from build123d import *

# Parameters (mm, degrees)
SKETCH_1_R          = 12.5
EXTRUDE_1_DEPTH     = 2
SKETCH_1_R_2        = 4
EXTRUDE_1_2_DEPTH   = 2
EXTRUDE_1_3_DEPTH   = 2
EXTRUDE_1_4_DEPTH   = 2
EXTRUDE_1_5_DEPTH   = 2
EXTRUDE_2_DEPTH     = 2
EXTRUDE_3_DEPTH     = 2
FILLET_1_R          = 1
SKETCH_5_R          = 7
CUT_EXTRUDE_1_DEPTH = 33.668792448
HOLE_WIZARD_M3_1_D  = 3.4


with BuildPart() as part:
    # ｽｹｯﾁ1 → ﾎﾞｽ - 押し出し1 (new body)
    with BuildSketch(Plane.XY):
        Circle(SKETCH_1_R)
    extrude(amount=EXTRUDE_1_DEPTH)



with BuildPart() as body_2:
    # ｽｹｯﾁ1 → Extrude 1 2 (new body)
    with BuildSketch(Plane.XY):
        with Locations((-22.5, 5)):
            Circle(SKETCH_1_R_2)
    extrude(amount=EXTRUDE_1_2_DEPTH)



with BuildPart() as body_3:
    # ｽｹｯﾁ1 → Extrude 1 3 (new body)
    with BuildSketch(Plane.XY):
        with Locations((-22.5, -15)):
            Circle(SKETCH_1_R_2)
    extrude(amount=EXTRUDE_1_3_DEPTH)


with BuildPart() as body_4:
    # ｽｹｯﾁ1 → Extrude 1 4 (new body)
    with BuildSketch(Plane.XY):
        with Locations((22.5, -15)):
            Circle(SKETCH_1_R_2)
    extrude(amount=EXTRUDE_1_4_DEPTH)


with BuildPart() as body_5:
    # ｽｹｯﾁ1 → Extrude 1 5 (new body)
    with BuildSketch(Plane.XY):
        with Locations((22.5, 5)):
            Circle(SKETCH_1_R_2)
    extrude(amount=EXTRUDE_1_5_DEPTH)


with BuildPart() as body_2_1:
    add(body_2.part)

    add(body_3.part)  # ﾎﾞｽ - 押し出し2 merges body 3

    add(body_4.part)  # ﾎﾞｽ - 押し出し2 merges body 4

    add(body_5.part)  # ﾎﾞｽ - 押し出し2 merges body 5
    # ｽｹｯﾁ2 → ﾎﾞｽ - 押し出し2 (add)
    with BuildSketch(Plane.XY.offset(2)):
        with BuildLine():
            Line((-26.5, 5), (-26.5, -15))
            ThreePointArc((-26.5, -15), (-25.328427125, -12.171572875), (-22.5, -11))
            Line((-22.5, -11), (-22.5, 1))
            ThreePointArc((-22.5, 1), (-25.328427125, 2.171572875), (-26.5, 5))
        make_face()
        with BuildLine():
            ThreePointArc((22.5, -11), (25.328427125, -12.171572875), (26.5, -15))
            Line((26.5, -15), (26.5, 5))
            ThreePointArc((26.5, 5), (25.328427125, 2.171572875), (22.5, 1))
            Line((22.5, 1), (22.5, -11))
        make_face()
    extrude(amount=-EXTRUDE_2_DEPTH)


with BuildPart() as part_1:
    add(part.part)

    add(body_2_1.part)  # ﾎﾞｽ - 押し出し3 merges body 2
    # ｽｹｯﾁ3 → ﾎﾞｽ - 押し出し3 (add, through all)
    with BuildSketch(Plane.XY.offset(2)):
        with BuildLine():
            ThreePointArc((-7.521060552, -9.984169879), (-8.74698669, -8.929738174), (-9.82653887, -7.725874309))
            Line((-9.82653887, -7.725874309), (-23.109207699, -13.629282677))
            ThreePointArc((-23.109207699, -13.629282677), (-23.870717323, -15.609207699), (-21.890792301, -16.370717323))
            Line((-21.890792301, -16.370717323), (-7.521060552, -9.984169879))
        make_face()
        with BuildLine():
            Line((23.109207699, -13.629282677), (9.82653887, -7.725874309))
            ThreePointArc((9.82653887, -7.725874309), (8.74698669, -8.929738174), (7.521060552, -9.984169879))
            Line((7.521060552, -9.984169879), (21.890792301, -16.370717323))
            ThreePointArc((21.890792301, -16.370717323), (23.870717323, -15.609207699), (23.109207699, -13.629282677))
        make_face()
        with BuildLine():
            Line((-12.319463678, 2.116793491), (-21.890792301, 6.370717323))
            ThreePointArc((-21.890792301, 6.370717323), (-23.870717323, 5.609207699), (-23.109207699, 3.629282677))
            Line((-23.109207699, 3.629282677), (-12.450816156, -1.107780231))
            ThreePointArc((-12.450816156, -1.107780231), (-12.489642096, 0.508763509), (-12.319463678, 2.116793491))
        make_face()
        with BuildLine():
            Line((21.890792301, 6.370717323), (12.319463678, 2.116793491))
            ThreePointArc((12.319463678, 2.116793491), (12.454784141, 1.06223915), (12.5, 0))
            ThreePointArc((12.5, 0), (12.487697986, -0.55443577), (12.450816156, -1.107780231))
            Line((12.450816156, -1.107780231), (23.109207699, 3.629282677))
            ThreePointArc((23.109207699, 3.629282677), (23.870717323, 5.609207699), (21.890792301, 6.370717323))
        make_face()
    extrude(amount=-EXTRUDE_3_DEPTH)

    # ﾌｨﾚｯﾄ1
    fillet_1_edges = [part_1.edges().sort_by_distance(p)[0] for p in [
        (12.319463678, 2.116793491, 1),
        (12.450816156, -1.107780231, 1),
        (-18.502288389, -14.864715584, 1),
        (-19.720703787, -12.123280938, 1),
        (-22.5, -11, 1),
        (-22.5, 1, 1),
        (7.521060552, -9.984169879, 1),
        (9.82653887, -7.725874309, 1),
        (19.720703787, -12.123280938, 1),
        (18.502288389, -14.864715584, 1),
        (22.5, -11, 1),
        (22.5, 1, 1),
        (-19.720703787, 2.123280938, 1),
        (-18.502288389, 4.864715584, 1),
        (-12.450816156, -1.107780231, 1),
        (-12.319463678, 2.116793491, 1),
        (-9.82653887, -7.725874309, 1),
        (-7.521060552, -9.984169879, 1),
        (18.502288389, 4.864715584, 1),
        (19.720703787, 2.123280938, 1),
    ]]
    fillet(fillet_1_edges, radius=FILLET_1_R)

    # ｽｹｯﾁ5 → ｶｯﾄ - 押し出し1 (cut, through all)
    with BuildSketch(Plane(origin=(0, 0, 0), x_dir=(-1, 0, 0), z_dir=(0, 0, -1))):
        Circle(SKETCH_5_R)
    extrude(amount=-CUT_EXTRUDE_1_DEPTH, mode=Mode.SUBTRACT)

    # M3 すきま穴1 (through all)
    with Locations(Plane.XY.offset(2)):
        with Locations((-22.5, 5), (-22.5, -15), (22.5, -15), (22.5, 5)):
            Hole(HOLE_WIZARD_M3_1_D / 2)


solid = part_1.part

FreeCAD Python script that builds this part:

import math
import FreeCAD as App
import Part
import Sketcher

V = App.Vector
Q = App.Units.Quantity


def edges_at(feature, points):
    """Names of the edges that pass closest to the given points."""
    edges = feature.Shape.Edges
    near = lambda p: min(range(len(edges)), key=lambda i: edges[i].distToShape(Part.Vertex(*p))[0])
    return sorted({f"Edge{near(p) + 1}" for p in points})

doc = App.newDocument("Part")
body = doc.addObject("PartDesign::Body", "Body")

# Sketch on XY plane
sketch1 = body.newObject("Sketcher::SketchObject", "Sketch")
sketch1.AttachmentSupport = (doc.getObject("XY_Plane"), [""])
sketch1.MapMode = "FlatFace"
sketch1.addGeometry(Part.Circle(V(0, 0, 0), V(0, 0, 1), 12), False)
sketch1.addConstraint([
    Sketcher.Constraint("Coincident", 0, 3, -1, 1),
    Sketcher.Constraint("Diameter", 0, Q("25 mm")),
])
pad1 = body.newObject("PartDesign::Pad", "Pad")
pad1.Profile = sketch1
pad1.Length = 2
body2 = doc.addObject("PartDesign::Body", "Body001")

# Sketch on XY plane
sketch2 = body2.newObject("Sketcher::SketchObject", "Sketch001")
sketch2.AttachmentSupport = (doc.getObject("XY_Plane001"), [""])
sketch2.MapMode = "FlatFace"
sketch2.addGeometry(Part.Circle(V(-22.5, 5, 0), V(0, 0, 1), 4), False)
sketch2.addConstraint([
    Sketcher.Constraint("Diameter", 0, Q("8 mm")),
    Sketcher.Constraint("DistanceY", -1, 1, 0, 3, Q("5 mm")),
    Sketcher.Constraint("DistanceX", 0, 3, -1, 1, Q("22.5 mm")),
])
pad2 = body2.newObject("PartDesign::Pad", "Pad001")
pad2.Profile = sketch2
pad2.Length = 2
body3 = doc.addObject("PartDesign::Body", "Body002")

# Sketch on XY plane
sketch3 = body3.newObject("Sketcher::SketchObject", "Sketch002")
sketch3.AttachmentSupport = (doc.getObject("XY_Plane002"), [""])
sketch3.MapMode = "FlatFace"
sketch3.addGeometry(Part.Circle(V(-22.5, -15, 0), V(0, 0, 1), 4), False)
sketch3.addConstraint([
    Sketcher.Constraint("Diameter", 0, Q("8 mm")),
    Sketcher.Constraint("DistanceY", 0, 3, -1, 1, Q("15 mm")),
    Sketcher.Constraint("DistanceX", 0, 3, -1, 1, Q("22.5 mm")),
])
pad3 = body3.newObject("PartDesign::Pad", "Pad002")
pad3.Profile = sketch3
pad3.Length = 2
body4 = doc.addObject("PartDesign::Body", "Body003")

# Sketch on XY plane
sketch4 = body4.newObject("Sketcher::SketchObject", "Sketch003")
sketch4.AttachmentSupport = (doc.getObject("XY_Plane003"), [""])
sketch4.MapMode = "FlatFace"
sketch4.addGeometry(Part.Circle(V(22.5, -15, 0), V(0, 0, 1), 4), False)
sketch4.addConstraint([
    Sketcher.Constraint("Diameter", 0, Q("8 mm")),
    Sketcher.Constraint("DistanceY", 0, 3, -1, 1, Q("15 mm")),
    Sketcher.Constraint("DistanceX", -1, 1, 0, 3, Q("22.5 mm")),
])
pad4 = body4.newObject("PartDesign::Pad", "Pad003")
pad4.Profile = sketch4
pad4.Length = 2
body5 = doc.addObject("PartDesign::Body", "Body004")

# Sketch on XY plane
sketch5 = body5.newObject("Sketcher::SketchObject", "Sketch004")
sketch5.AttachmentSupport = (doc.getObject("XY_Plane004"), [""])
sketch5.MapMode = "FlatFace"
sketch5.addGeometry(Part.Circle(V(22.5, 5, 0), V(0, 0, 1), 4), False)
sketch5.addConstraint([
    Sketcher.Constraint("Diameter", 0, Q("8 mm")),
    Sketcher.Constraint("DistanceY", -1, 1, 0, 3, Q("5 mm")),
    Sketcher.Constraint("DistanceX", -1, 1, 0, 3, Q("22.5 mm")),
])
pad5 = body5.newObject("PartDesign::Pad", "Pad004")
pad5.Profile = sketch5
pad5.Length = 2
body2.AllowCompound = True
doc.recompute()

boolean = body2.newObject("PartDesign::Boolean", "Boolean")
boolean.Type = "Fuse"
boolean.addObjects([body3])
doc.recompute()

boolean2 = body2.newObject("PartDesign::Boolean", "Boolean001")
boolean2.Type = "Fuse"
boolean2.addObjects([body4])
doc.recompute()

boolean3 = body2.newObject("PartDesign::Boolean", "Boolean002")
boolean3.Type = "Fuse"
boolean3.addObjects([body5])

# Sketch on XY plane
sketch6 = body2.newObject("Sketcher::SketchObject", "Sketch005")
sketch6.AttachmentSupport = (doc.getObject("XY_Plane001"), [""])
sketch6.MapMode = "FlatFace"
sketch6.AttachmentOffset = App.Placement(V(0, 0, 2), App.Rotation())
sketch6.addGeometry([
    Part.LineSegment(V(-26.5, 5, 0), V(-26.5, -15, 0)),  # 0
    Part.ArcOfCircle(Part.Circle(V(-22.5, -15, 0), V(0, 0, 1), 4), math.radians(90), math.radians(180)),  # 1
    Part.LineSegment(V(-22.5, -11, 0), V(-22.5, 1, 0)),  # 2
    Part.ArcOfCircle(Part.Circle(V(-22.5, 5, 0), V(0, 0, 1), 4), math.radians(180), math.radians(270)),  # 3
    Part.ArcOfCircle(Part.Circle(V(22.5, -15, 0), V(0, 0, 1), 4), math.radians(0), math.radians(90)),  # 4
    Part.LineSegment(V(26.5, -15, 0), V(26.5, 5, 0)),  # 5
    Part.ArcOfCircle(Part.Circle(V(22.5, 5, 0), V(0, 0, 1), 4), math.radians(-90), math.radians(0)),  # 6
    Part.LineSegment(V(22.5, 1, 0), V(22.5, -11, 0)),  # 7
], False)
sketch6.addConstraint([
    Sketcher.Constraint("Tangent", 0, 2, 1, 2),
    Sketcher.Constraint("Coincident", 1, 1, 2, 1),
    Sketcher.Constraint("Coincident", 2, 2, 3, 2),
    Sketcher.Constraint("Tangent", 3, 1, 0, 1),
    Sketcher.Constraint("Tangent", 4, 1, 5, 1),
    Sketcher.Constraint("Tangent", 5, 2, 6, 2),
    Sketcher.Constraint("Coincident", 6, 1, 7, 1),
    Sketcher.Constraint("Coincident", 7, 2, 4, 2),
    Sketcher.Constraint("Vertical", 0),
    Sketcher.Constraint("Vertical", 2),
    Sketcher.Constraint("Vertical", 5),
    Sketcher.Constraint("Vertical", 7),
    Sketcher.Constraint("Equal", 1, 3),
    Sketcher.Constraint("Equal", 3, 4),
    Sketcher.Constraint("Equal", 4, 6),
    Sketcher.Constraint("Symmetric", 1, 3, 4, 3, -2),
    Sketcher.Constraint("Symmetric", 2, 2, 6, 1, -2),
    Sketcher.Constraint("Vertical", 3, 3, 1, 1),
    Sketcher.Constraint("Radius", 1, Q("4 mm")),
    Sketcher.Constraint("DistanceY", 0, 2, 0, 1, Q("20 mm")),
    Sketcher.Constraint("DistanceY", 1, 3, -1, 1, Q("15 mm")),
    Sketcher.Constraint("DistanceX", 1, 3, 4, 3, Q("45 mm")),
])
pad6 = body2.newObject("PartDesign::Pad", "Pad005")
pad6.Profile = sketch6
pad6.Length = 2
pad6.Reversed = True
body.AllowCompound = True
doc.recompute()

boolean4 = body.newObject("PartDesign::Boolean", "Boolean003")
boolean4.Type = "Fuse"
boolean4.addObjects([body2])

# Sketch on XY plane
sketch7 = body.newObject("Sketcher::SketchObject", "Sketch006")
sketch7.AttachmentSupport = (doc.getObject("XY_Plane"), [""])
sketch7.MapMode = "FlatFace"
sketch7.AttachmentOffset = App.Placement(V(0, 0, 2), App.Rotation())
sketch7.addGeometry([
    Part.ArcOfCircle(Part.Circle(V(0, 0, 0), V(0, 0, 1), 12.5), math.radians(-141.82), math.radians(-126.99)),  # 0
    Part.LineSegment(V(-9.8, -7.7, 0), V(-23.1, -13.6, 0)),  # 1
    Part.ArcOfCircle(Part.Circle(V(-22.5, -15, 0), V(0, 0, 1), 1.5), math.radians(114), math.radians(294)),  # 2
    Part.LineSegment(V(-21.9, -16.4, 0), V(-7.5, -10, 0)),  # 3
    Part.LineSegment(V(23.1, -13.6, 0), V(9.8, -7.7, 0)),  # 4
    Part.ArcOfCircle(Part.Circle(V(0, 0, 0), V(0, 0, 1), 12.5), math.radians(-53.01), math.radians(-38.18)),  # 5
    Part.LineSegment(V(7.5, -10, 0), V(21.9, -16.4, 0)),  # 6
    Part.ArcOfCircle(Part.Circle(V(22.5, -15, 0), V(0, 0, 1), 1.5), math.radians(-114), math.radians(66)),  # 7
    Part.LineSegment(V(-12.3, 2.1, 0), V(-21.9, 6.4, 0)),  # 8
    Part.ArcOfCircle(Part.Circle(V(-22.5, 5, 0), V(0, 0, 1), 1.5), math.radians(66), math.radians(246)),  # 9
    Part.LineSegment(V(-23.1, 3.6, 0), V(-12.5, -1.1, 0)),  # 10
    Part.ArcOfCircle(Part.Circle(V(0, 0, 0), V(0, 0, 1), 12.5), math.radians(170.25), math.radians(185.08)),  # 11
    Part.LineSegment(V(21.9, 6.4, 0), V(12.3, 2.1, 0)),  # 12
    Part.ArcOfCircle(Part.Circle(V(0, 0, 0), V(0, 0, 1), 12.5), math.radians(0), math.radians(9.75)),  # 13
    Part.ArcOfCircle(Part.Circle(V(0, 0, 0), V(0, 0, 1), 12.5), math.radians(-5.08), math.radians(0)),  # 14
    Part.LineSegment(V(12.5, -1.1, 0), V(23.1, 3.6, 0)),  # 15
    Part.ArcOfCircle(Part.Circle(V(22.5, 5, 0), V(0, 0, 1), 1.5), math.radians(-66), math.radians(114)),  # 16
], False)
sketch7.addConstraint([
    Sketcher.Constraint("Coincident", 0, 1, 1, 1),
    Sketcher.Constraint("Tangent", 1, 2, 2, 1),
    Sketcher.Constraint("Tangent", 2, 2, 3, 1),
    Sketcher.Constraint("Coincident", 3, 2, 0, 2),
    Sketcher.Constraint("Coincident", 4, 2, 5, 2),
    Sketcher.Constraint("Coincident", 5, 1, 6, 1),
    Sketcher.Constraint("Tangent", 6, 2, 7, 1),
    Sketcher.Constraint("Tangent", 7, 2, 4, 1),
    Sketcher.Constraint("Tangent", 8, 2, 9, 1),
    Sketcher.Constraint("Tangent", 9, 2, 10, 1),
    Sketcher.Constraint("Coincident", 10, 2, 11, 2),
    Sketcher.Constraint("Coincident", 11, 1, 8, 1),
    Sketcher.Constraint("Coincident", 12, 2, 13, 2),
    Sketcher.Constraint("Tangent", 13, 1, 14, 2),
    Sketcher.Constraint("Coincident", 14, 1, 15, 1),
    Sketcher.Constraint("Tangent", 15, 2, 16, 1),
    Sketcher.Constraint("Tangent", 16, 2, 12, 1),
    Sketcher.Constraint("Coincident", 0, 3, -1, 1),
    Sketcher.Constraint("Coincident", 5, 3, -1, 1),
    Sketcher.Constraint("Coincident", 11, 3, -1, 1),
    Sketcher.Constraint("Coincident", 13, 3, -1, 1),
    Sketcher.Constraint("Equal", 0, 5),
    Sketcher.Constraint("Equal", 2, 7),
    Sketcher.Constraint("Equal", 7, 9),
    Sketcher.Constraint("Equal", 5, 11),
    Sketcher.Constraint("Equal", 11, 13),
    Sketcher.Constraint("Equal", 13, 14),
    Sketcher.Constraint("Equal", 9, 16),
    Sketcher.Constraint("Symmetric", 2, 3, 7, 3, -2),
    Sketcher.Constraint("Symmetric", 9, 3, 16, 3, -2),
    Sketcher.Constraint("PointOnObject", 13, 1, -1),
    Sketcher.Constraint("Parallel", 1, 3),
    Sketcher.Constraint("Parallel", 4, 6),
    Sketcher.Constraint("Parallel", 6, 8),
    Sketcher.Constraint("Parallel", 8, 10),
    Sketcher.Constraint("Parallel", 3, 12),
    Sketcher.Constraint("Parallel", 12, 15),
    Sketcher.Constraint("Horizontal", 0, 1, 4, 2),
    Sketcher.Constraint("Vertical", 2, 3, 9, 3),
    Sketcher.Constraint("Radius", 0, Q("12.5 mm")),
    Sketcher.Constraint("Radius", 2, Q("1.5 mm")),
    Sketcher.Constraint("DistanceY", 2, 3, -1, 1, Q("15 mm")),
    Sketcher.Constraint("DistanceY", -1, 1, 9, 3, Q("5 mm")),
    Sketcher.Constraint("DistanceX", 2, 3, 7, 3, Q("45 mm")),
    Sketcher.Constraint("Distance", 3, Q("15.725049 mm")),
])
pad7 = body.newObject("PartDesign::Pad", "Pad006")
pad7.Profile = sketch7
pad7.Type = "UpToLast"
pad7.Reversed = True
doc.recompute()

fillet = body.newObject("PartDesign::Fillet", "Fillet")
fillet.Base = (pad7, edges_at(pad7, [
    (12.319, 2.117, 1),
    (12.451, -1.108, 1),
    (-18.502, -14.865, 1),
    (-19.721, -12.123, 1),
    (-22.5, -11, 1),
    (-22.5, 1, 1),
    (7.521, -9.984, 1),
    (9.827, -7.726, 1),
    (19.721, -12.123, 1),
    (18.502, -14.865, 1),
    (22.5, -11, 1),
    (22.5, 1, 1),
    (-19.721, 2.123, 1),
    (-18.502, 4.865, 1),
    (-12.451, -1.108, 1),
    (-12.319, 2.117, 1),
    (-9.827, -7.726, 1),
    (-7.521, -9.984, 1),
    (18.502, 4.865, 1),
    (19.721, 2.123, 1),
]))
fillet.Radius = 1

# Sketch on XY plane
sketch8 = body.newObject("Sketcher::SketchObject", "Sketch007")
sketch8.AttachmentSupport = (doc.getObject("XY_Plane"), [""])
sketch8.MapMode = "FlatFace"
sketch8.addGeometry(Part.Circle(V(0, 0, 0), V(0, 0, 1), 7), False)
sketch8.addConstraint([
    Sketcher.Constraint("Coincident", 0, 3, -1, 1),
    Sketcher.Constraint("Diameter", 0, Q("14 mm")),
])
pocket1 = body.newObject("PartDesign::Pocket", "Pocket")
pocket1.Profile = sketch8
pocket1.Type = "ThroughAll"
pocket1.Reversed = True

# Sketch on XY plane
sketch9 = body.newObject("Sketcher::SketchObject", "Sketch008")
sketch9.AttachmentSupport = (doc.getObject("XY_Plane"), [""])
sketch9.MapMode = "FlatFace"
sketch9.AttachmentOffset = App.Placement(V(0, 0, 2), App.Rotation())
sketch9.addGeometry([
    Part.Circle(V(-22.5, 5, 0), V(0, 0, 1), 1.7),
    Part.Circle(V(-22.5, -15, 0), V(0, 0, 1), 1.7),
    Part.Circle(V(22.5, -15, 0), V(0, 0, 1), 1.7),
    Part.Circle(V(22.5, 5, 0), V(0, 0, 1), 1.7),
], False)
sketch9.addConstraint([
    Sketcher.Constraint("Equal", 0, 1),
    Sketcher.Constraint("Equal", 1, 2),
    Sketcher.Constraint("Equal", 2, 3),
    Sketcher.Constraint("Symmetric", 1, 3, 2, 3, -2),
    Sketcher.Constraint("Symmetric", 0, 3, 3, 3, -2),
    Sketcher.Constraint("Vertical", 0, 3, 1, 3),
    Sketcher.Constraint("Diameter", 0, Q("3.4 mm")),
    Sketcher.Constraint("DistanceY", -1, 1, 0, 3, Q("5 mm")),
    Sketcher.Constraint("DistanceY", 1, 3, -1, 1, Q("15 mm")),
    Sketcher.Constraint("DistanceX", 1, 3, 2, 3, Q("45 mm")),
])
doc.recompute()
hole = body.newObject("PartDesign::Hole", "Hole")
hole.Profile = sketch9
hole.ThreadType = "None"
hole.Diameter = 3.4
hole.DepthType = "ThroughAll"

doc.recompute()
